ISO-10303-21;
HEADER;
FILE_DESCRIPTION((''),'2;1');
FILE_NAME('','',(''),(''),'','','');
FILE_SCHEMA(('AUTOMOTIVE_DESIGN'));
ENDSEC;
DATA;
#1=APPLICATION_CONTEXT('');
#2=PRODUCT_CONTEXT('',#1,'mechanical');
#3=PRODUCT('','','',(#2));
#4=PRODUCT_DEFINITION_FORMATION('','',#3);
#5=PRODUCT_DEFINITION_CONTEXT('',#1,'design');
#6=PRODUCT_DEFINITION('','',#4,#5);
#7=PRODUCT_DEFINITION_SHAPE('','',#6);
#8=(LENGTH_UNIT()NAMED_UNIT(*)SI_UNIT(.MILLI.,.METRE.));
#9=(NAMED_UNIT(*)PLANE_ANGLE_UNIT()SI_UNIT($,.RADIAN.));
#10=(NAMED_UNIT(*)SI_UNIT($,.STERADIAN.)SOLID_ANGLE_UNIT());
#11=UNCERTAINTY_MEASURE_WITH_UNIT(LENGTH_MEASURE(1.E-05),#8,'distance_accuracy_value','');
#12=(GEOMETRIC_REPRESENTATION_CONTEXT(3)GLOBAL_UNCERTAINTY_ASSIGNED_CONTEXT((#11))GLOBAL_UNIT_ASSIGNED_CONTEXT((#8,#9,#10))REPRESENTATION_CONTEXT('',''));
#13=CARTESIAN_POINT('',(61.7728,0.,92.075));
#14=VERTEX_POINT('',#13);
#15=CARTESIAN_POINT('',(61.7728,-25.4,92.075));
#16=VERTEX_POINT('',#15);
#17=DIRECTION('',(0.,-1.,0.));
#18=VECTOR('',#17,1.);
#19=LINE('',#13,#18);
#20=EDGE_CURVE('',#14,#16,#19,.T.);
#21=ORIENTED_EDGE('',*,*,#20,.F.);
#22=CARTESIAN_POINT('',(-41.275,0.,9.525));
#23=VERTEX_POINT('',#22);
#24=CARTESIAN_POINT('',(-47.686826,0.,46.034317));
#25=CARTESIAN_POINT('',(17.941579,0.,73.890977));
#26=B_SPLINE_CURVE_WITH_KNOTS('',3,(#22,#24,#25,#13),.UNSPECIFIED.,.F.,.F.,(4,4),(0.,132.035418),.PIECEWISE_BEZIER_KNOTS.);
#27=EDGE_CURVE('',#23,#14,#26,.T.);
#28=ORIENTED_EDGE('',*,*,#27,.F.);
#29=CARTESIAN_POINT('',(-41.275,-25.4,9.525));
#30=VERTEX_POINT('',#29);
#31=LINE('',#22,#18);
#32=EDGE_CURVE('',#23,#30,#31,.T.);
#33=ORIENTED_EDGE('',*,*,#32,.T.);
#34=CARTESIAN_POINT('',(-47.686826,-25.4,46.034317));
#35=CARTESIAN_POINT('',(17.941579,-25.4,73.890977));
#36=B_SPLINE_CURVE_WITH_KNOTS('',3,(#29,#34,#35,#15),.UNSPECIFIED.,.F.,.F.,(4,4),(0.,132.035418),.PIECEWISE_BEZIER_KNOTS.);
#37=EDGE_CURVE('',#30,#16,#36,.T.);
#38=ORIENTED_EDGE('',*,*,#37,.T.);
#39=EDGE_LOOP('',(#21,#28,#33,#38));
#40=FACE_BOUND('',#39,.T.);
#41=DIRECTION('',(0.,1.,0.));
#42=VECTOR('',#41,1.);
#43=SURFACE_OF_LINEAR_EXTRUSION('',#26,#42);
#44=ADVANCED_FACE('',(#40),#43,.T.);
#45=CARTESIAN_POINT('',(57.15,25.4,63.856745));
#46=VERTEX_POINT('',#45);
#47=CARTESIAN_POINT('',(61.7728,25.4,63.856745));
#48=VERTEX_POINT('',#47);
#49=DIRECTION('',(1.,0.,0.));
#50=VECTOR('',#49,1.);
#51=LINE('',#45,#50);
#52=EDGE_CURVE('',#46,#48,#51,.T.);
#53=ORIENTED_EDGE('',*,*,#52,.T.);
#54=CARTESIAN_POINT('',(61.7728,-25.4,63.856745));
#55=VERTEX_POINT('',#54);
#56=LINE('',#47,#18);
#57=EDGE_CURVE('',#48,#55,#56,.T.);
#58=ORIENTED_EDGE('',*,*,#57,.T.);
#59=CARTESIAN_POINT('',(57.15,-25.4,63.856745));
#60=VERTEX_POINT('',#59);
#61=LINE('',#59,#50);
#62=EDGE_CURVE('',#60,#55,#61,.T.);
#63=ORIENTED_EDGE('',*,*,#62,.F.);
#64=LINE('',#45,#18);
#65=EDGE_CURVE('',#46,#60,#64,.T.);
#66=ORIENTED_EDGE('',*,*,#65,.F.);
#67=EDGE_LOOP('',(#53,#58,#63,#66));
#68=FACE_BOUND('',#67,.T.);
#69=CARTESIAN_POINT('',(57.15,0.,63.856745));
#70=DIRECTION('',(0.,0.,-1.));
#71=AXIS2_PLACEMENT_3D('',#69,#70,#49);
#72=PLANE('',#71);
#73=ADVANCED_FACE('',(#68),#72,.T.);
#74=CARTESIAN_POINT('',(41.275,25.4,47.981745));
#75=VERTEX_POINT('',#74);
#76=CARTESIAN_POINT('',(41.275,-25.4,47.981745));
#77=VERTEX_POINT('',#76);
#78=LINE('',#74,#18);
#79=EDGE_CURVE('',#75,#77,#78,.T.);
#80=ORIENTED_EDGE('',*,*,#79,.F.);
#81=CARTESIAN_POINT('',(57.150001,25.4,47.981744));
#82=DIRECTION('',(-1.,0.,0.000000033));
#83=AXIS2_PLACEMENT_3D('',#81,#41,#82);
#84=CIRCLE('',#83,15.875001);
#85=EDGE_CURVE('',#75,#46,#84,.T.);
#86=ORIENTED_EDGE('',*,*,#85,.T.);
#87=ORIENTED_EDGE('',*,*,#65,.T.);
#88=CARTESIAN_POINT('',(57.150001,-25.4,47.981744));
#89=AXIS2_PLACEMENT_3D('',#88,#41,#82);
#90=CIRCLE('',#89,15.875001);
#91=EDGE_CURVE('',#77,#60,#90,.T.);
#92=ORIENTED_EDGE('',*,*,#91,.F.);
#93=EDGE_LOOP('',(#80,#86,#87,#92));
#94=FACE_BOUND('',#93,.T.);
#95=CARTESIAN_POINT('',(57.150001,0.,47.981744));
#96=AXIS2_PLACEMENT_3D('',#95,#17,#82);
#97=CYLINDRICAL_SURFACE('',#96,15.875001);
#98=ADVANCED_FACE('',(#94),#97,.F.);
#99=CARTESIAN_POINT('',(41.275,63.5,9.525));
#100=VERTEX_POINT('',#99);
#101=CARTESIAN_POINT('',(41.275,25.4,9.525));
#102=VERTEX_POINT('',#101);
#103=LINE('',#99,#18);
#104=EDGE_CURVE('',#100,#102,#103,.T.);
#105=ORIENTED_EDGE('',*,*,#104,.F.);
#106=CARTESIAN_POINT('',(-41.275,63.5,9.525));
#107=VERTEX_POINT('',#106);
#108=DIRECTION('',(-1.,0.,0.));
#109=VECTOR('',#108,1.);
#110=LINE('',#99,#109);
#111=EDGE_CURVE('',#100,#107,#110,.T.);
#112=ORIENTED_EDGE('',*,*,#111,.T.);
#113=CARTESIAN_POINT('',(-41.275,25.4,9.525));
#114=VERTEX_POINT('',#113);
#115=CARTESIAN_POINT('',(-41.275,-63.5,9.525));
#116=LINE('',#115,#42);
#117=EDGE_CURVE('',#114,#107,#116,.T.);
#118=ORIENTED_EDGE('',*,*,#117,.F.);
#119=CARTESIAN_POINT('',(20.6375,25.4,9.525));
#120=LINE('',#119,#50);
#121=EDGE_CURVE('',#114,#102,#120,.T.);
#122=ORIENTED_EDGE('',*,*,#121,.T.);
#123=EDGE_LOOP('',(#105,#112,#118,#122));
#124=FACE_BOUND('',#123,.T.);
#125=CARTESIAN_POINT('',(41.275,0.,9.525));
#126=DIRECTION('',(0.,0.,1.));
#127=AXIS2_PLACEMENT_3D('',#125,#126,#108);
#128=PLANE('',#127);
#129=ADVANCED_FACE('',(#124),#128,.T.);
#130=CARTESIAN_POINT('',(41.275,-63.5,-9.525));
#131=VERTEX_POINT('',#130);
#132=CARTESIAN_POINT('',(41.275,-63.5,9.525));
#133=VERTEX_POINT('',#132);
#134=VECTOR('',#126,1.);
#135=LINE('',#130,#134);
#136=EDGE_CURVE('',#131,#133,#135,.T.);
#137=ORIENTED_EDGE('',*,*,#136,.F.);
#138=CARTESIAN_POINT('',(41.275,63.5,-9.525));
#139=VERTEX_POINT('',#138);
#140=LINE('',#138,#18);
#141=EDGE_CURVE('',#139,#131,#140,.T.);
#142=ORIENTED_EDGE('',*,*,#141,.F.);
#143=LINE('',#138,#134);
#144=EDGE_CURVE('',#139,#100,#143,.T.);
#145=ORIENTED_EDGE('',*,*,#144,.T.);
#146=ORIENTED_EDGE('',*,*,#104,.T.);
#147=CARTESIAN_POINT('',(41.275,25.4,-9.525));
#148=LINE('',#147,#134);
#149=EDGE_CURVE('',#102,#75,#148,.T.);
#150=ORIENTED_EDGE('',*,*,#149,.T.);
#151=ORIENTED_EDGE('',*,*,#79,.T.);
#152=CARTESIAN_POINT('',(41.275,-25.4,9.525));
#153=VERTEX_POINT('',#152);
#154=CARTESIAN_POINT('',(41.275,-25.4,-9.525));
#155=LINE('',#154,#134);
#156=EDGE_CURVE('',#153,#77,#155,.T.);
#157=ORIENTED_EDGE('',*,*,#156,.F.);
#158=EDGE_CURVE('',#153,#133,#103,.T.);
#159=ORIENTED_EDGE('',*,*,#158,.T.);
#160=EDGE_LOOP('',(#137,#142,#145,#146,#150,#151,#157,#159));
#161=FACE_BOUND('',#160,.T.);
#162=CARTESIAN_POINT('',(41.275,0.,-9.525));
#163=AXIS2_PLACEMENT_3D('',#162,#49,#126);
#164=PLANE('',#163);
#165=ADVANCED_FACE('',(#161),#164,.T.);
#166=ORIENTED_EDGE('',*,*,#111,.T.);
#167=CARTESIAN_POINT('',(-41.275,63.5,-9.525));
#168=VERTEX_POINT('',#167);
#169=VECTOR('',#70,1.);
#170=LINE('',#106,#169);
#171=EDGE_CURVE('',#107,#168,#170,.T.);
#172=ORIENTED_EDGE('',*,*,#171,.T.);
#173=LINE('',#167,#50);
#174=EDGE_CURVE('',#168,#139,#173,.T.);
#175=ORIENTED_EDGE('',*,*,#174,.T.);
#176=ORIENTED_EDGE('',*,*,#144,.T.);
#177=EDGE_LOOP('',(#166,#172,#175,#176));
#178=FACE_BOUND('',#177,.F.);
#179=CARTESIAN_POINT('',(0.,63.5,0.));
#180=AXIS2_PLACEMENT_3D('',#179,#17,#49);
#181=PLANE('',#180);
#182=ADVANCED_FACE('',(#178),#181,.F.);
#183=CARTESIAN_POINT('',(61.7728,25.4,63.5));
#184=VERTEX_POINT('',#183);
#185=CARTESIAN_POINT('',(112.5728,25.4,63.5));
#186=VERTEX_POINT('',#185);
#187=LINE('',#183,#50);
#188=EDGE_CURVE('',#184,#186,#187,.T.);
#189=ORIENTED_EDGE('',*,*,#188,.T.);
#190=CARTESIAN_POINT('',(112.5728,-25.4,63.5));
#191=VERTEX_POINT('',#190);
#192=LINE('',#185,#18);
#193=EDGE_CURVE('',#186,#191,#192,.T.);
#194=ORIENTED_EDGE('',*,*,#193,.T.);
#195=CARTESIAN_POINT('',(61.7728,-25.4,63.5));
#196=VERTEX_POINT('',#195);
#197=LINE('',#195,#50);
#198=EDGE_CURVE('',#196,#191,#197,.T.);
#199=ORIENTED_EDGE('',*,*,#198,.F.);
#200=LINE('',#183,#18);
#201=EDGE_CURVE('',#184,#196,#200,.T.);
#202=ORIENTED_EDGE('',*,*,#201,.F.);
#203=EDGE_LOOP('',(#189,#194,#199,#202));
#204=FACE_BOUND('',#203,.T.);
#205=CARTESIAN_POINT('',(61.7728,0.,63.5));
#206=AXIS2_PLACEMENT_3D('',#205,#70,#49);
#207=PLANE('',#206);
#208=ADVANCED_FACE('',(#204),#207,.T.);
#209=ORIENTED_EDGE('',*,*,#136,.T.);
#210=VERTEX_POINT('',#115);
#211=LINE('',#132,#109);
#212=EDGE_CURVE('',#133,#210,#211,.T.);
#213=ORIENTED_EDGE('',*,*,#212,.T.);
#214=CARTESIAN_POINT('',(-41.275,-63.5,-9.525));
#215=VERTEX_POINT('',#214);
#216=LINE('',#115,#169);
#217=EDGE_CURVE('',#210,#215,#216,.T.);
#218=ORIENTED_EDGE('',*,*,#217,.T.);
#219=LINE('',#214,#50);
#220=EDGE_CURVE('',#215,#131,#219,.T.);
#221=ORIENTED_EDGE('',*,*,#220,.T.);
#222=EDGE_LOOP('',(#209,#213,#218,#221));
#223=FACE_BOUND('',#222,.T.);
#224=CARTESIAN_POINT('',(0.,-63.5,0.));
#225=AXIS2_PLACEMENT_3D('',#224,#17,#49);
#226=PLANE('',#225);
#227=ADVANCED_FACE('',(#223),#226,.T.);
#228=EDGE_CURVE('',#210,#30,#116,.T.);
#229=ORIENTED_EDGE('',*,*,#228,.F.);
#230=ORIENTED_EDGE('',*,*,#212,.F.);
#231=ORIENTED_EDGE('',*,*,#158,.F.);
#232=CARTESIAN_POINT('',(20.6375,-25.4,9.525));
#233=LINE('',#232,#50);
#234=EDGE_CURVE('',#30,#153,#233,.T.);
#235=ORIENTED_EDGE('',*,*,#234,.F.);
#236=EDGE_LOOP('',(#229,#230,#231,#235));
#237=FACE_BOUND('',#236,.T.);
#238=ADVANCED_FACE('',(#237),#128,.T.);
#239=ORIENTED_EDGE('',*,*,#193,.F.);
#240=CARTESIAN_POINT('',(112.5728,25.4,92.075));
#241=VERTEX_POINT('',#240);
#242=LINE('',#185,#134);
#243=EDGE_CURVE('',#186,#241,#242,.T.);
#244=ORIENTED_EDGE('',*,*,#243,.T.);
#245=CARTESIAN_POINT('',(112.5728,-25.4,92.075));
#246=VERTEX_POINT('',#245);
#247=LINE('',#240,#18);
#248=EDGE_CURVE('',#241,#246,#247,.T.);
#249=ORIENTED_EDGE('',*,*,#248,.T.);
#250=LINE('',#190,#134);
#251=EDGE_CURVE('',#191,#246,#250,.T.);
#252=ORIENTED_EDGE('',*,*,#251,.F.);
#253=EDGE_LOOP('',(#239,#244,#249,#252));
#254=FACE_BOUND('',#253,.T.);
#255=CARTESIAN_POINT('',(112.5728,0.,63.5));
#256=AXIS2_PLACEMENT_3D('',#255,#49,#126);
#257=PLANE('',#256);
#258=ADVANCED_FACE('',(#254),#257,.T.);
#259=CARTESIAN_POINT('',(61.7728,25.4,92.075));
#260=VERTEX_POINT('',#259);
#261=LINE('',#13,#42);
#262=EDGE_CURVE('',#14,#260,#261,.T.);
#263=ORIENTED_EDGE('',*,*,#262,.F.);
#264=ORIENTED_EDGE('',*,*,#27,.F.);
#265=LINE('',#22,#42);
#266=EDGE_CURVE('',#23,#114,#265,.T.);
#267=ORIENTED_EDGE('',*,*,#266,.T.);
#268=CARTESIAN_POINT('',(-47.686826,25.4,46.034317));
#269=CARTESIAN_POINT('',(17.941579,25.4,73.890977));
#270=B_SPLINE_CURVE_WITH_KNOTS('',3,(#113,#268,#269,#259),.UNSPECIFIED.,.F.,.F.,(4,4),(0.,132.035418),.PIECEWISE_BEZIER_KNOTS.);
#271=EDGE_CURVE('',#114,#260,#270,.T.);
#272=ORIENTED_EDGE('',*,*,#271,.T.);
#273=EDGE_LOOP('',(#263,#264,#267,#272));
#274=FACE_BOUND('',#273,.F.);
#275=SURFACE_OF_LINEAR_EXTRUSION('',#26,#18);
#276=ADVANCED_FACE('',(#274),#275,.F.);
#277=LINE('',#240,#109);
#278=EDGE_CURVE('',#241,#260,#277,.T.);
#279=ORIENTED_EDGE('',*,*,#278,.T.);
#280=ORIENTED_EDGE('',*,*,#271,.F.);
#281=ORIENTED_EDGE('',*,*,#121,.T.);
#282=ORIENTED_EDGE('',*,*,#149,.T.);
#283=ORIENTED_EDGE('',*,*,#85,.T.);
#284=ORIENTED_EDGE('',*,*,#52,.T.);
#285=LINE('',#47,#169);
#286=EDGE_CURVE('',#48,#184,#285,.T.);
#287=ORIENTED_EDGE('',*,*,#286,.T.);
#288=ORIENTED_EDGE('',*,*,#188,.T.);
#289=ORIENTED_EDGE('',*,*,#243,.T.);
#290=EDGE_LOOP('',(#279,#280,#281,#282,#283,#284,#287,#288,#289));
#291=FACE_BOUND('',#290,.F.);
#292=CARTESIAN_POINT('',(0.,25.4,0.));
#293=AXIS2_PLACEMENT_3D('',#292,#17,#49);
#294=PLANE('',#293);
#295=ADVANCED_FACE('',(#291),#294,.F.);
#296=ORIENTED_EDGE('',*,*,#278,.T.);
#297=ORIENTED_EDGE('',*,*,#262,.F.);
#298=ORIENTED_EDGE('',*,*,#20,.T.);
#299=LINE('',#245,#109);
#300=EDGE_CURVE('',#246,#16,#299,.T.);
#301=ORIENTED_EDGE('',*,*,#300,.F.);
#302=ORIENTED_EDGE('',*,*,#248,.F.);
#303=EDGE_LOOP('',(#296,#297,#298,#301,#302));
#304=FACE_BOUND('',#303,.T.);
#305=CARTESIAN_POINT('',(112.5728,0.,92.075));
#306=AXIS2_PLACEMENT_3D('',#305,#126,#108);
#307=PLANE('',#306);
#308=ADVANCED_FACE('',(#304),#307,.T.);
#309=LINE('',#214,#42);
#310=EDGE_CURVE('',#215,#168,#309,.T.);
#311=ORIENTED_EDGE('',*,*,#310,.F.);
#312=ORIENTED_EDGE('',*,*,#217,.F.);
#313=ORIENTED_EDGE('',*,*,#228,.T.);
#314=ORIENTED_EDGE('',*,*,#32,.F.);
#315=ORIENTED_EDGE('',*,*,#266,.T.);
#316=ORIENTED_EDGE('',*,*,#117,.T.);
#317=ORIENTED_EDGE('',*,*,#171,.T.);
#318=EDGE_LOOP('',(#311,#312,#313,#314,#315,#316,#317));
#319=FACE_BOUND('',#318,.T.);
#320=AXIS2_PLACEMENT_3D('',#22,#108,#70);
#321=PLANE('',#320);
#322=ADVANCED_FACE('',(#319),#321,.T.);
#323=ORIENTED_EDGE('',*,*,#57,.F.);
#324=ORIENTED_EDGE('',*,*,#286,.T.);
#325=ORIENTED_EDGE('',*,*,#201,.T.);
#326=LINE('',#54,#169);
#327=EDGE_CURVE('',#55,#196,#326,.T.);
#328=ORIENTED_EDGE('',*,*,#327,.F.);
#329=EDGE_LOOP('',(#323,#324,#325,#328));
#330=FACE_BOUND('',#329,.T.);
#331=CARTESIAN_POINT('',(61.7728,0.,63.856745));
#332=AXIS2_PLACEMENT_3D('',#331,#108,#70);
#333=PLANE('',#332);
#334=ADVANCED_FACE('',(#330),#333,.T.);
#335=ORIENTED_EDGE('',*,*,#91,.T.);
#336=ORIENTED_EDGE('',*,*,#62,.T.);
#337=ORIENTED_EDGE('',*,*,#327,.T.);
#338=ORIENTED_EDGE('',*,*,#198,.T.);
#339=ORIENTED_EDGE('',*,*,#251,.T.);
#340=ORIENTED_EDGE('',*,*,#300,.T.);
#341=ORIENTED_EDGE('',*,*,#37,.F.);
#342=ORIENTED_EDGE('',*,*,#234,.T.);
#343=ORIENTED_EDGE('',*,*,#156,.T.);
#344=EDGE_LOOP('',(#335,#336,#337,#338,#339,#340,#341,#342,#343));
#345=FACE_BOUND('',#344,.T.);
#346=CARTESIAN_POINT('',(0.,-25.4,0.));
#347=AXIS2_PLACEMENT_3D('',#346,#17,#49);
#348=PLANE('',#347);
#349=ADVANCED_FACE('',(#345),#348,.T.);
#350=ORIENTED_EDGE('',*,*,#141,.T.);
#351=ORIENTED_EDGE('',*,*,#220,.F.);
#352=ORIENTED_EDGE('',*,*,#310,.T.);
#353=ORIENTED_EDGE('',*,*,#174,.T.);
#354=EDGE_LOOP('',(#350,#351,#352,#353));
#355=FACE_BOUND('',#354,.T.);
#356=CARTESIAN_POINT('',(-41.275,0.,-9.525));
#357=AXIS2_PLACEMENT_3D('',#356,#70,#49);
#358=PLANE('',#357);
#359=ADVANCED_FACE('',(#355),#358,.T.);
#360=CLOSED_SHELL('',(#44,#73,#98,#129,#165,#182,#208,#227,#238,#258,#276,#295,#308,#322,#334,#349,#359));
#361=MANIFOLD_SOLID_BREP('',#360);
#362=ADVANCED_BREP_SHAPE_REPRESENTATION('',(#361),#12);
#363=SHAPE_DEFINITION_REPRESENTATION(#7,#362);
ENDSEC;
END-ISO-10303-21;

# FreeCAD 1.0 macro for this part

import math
import FreeCAD as App
import Part
import Sketcher

V = App.Vector
Q = App.Units.Quantity

doc = App.newDocument("Part")
body = doc.addObject("PartDesign::Body", "Body")

sketch1 = body.newObject("Sketcher::SketchObject", "Sketch")
sketch1.AttachmentSupport = (doc.getObject("XZ_Plane"), [""])
sketch1.MapMode = "FlatFace"
sketch1.addGeometry(Part.LineSegment(V(-41.275, -9.525, 0), V(41.275, -9.525, 0)), False)
sketch1.addGeometry(Part.LineSegment(V(41.275, -9.525, 0), V(41.275, 9.525, 0)), False)
sketch1.addGeometry(Part.LineSegment(V(41.275, 9.525, 0), V(-41.275, 9.525, 0)), False)
sketch1.addGeometry(Part.LineSegment(V(-41.275, 9.525, 0), V(-41.275, -9.525, 0)), False)
sketch1.addConstraint(Sketcher.Constraint("Coincident", 0, 2, 1, 1))
sketch1.addConstraint(Sketcher.Constraint("Coincident", 1, 2, 2, 1))
sketch1.addConstraint(Sketcher.Constraint("Coincident", 2, 2, 3, 1))
sketch1.addConstraint(Sketcher.Constraint("Coincident", 3, 2, 0, 1))
sketch1.addConstraint(Sketcher.Constraint("Horizontal", 0))
sketch1.addConstraint(Sketcher.Constraint("Vertical", 1))
sketch1.addConstraint(Sketcher.Constraint("Horizontal", 2))
sketch1.addConstraint(Sketcher.Constraint("Vertical", 3))
sketch1.addConstraint(Sketcher.Constraint("Symmetric", 0, 2, 2, 2, -1, 1))
sketch1.addConstraint(Sketcher.Constraint("DistanceX", 0, 1, 0, 2, Q("3.25 in")))
sketch1.addConstraint(Sketcher.Constraint("DistanceY", 1, 1, 1, 2, Q("0.75 in")))
pad1 = body.newObject("PartDesign::Pad", "Pad")
pad1.Profile = sketch1
pad1.Length = Q("5 in")
pad1.Midplane = True

sketch2 = body.newObject("Sketcher::SketchObject", "Sketch001")
sketch2.AttachmentSupport = (doc.getObject("XZ_Plane"), [""])
sketch2.MapMode = "FlatFace"
sketch2.addGeometry(Part.LineSegment(V(-41.275, -9.525, 0), V(41.275, -9.525, 0)), False)
sketch2.addGeometry(Part.LineSegment(V(41.275, -9.525, 0), V(41.275, 47.981745, 0)), False)
sketch2.addGeometry(Part.ArcOfCircle(Part.Circle(V(57.150001, 47.981744, 0), V(0, 0, 1), 15.875001), math.radians(90.000002), math.radians(179.999998)), False)
sketch2.addGeometry(Part.LineSegment(V(57.15, 63.856745, 0), V(61.7728, 63.856745, 0)), False)
sketch2.addGeometry(Part.LineSegment(V(61.7728, 63.856745, 0), V(61.7728, 63.5, 0)), False)
sketch2.addGeometry(Part.LineSegment(V(61.7728, 63.5, 0), V(112.5728, 63.5, 0)), False)
sketch2.addGeometry(Part.LineSegment(V(112.5728, 63.5, 0), V(112.5728, 92.075, 0)), False)
sketch2.addGeometry(Part.LineSegment(V(112.5728, 92.075, 0), V(61.7728, 92.075, 0)), False)
sketch2.addGeometry(Part.BSplineCurve([V(-41.275, 9.525, 0), V(-47.686826, 46.034317, 0), V(17.941579, 73.890977, 0), V(61.7728, 92.075, 0)], [4, 4], [0, 132.035418], False, 3, [1, 1, 1, 1], False), False)
sketch2.addGeometry(Part.LineSegment(V(-41.275, 9.525, 0), V(-41.275, -9.525, 0)), False)
sketch2.addConstraint(Sketcher.Constraint("Block", 8))
sketch2.addConstraint(Sketcher.Constraint("Coincident", 0, 2, 1, 1))
sketch2.addConstraint(Sketcher.Constraint("Tangent", 1, 2, 2, 2))
sketch2.addConstraint(Sketcher.Constraint("Tangent", 2, 1, 3, 1))
sketch2.addConstraint(Sketcher.Constraint("Coincident", 3, 2, 4, 1))
sketch2.addConstraint(Sketcher.Constraint("Coincident", 4, 2, 5, 1))
sketch2.addConstraint(Sketcher.Constraint("Coincident", 5, 2, 6, 1))
sketch2.addConstraint(Sketcher.Constraint("Coincident", 6, 2, 7, 1))
sketch2.addConstraint(Sketcher.Constraint("Coincident", 7, 2, 8, 2))
sketch2.addConstraint(Sketcher.Constraint("Coincident", 8, 1, 9, 1))
sketch2.addConstraint(Sketcher.Constraint("Coincident", 9, 2, 0, 1))
sketch2.addConstraint(Sketcher.Constraint("Horizontal", 0))
sketch2.addConstraint(Sketcher.Constraint("Vertical", 1))
sketch2.addConstraint(Sketcher.Constraint("Horizontal", 3))
sketch2.addConstraint(Sketcher.Constraint("Vertical", 4))
sketch2.addConstraint(Sketcher.Constraint("Horizontal", 5))
sketch2.addConstraint(Sketcher.Constraint("Vertical", 6))
sketch2.addConstraint(Sketcher.Constraint("Horizontal", 7))
sketch2.addConstraint(Sketcher.Constraint("Vertical", 9))
sketch2.addConstraint(Sketcher.Constraint("Vertical", 4, 2, 7, 2))
sketch2.addConstraint(Sketcher.Constraint("DistanceX", 5, 1, 5, 2, Q("2 in")))
sketch2.addConstraint(Sketcher.Constraint("Radius", 2, Q("0.625 in")))
sketch2.addConstraint(Sketcher.Constraint("DistanceX", 0, 1, 0, 2, Q("3.25 in")))
sketch2.addConstraint(Sketcher.Constraint("DistanceY", 9, 2, 9, 1, Q("0.75 in")))
sketch2.addConstraint(Sketcher.Constraint("DistanceY", -1, 1, 4, 2, Q("2.5 in")))
sketch2.addConstraint(Sketcher.Constraint("DistanceY", 1, 1, 1, 2, Q("57.506745 mm")))
pad2 = body.newObject("PartDesign::Pad", "Pad001")
pad2.Profile = sketch2
pad2.Length = Q("2 in")
pad2.Midplane = True

doc.recompute()
